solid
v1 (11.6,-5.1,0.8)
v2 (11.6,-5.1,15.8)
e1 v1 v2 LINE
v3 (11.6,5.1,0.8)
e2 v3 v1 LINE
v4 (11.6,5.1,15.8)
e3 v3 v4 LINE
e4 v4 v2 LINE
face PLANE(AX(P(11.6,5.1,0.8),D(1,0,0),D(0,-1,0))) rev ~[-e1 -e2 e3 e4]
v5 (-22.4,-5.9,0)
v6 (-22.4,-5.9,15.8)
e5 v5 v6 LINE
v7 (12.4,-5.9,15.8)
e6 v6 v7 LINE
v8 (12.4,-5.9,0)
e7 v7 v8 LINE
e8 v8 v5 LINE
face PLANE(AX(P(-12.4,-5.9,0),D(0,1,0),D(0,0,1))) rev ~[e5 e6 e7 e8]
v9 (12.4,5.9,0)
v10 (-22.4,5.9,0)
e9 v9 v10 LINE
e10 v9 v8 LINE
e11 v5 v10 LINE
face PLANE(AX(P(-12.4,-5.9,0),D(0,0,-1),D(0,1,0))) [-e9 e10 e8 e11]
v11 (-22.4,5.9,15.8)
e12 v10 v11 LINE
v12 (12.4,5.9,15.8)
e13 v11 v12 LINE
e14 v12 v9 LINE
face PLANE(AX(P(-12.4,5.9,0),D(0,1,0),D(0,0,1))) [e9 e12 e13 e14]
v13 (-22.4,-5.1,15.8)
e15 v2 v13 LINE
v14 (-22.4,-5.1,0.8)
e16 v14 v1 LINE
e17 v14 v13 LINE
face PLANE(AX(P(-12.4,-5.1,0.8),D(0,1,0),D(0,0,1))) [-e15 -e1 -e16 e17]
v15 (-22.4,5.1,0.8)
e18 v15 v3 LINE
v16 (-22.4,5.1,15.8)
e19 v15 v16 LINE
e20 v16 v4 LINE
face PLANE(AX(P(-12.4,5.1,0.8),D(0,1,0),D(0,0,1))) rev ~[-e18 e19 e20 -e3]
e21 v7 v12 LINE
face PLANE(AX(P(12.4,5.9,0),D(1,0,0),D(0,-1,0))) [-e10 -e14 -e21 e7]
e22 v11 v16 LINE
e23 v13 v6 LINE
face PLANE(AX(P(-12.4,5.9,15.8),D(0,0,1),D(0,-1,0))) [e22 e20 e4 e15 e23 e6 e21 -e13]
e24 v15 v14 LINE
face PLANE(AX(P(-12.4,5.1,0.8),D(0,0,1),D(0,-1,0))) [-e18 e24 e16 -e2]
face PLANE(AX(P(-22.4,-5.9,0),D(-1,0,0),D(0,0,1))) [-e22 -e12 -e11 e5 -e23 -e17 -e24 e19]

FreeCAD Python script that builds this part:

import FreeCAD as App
import Part
import Sketcher
from FreeCAD import Vector


def add_polygon(sketch, points):
    """Adds a closed chain of lines whose ends are joined by coincident constraints."""
    first, n = sketch.GeometryCount, len(points)
    for a, b in zip(points, points[1:] + points[:1]):
        sketch.addGeometry(Part.LineSegment(App.Vector(*a, 0), App.Vector(*b, 0)), False)
    for i in range(n):
        sketch.addConstraint(Sketcher.Constraint("Coincident", first + i, 2, first + (i + 1) % n, 1))

doc = App.newDocument("Part")
body = doc.addObject("PartDesign::Body", "Body")

# Sketch on XY plane
sketch1 = body.newObject("Sketcher::SketchObject", "Sketch")
sketch1.AttachmentSupport = (doc.getObject("XY_Plane"), [""])
sketch1.MapMode = "FlatFace"
add_polygon(sketch1, [(12, 6), (-12, 6), (-12, -6), (12, -6)])  # lines 0-3
sketch1.addConstraint([
    Sketcher.Constraint("Horizontal", 0),
    Sketcher.Constraint("Vertical", 1),
    Sketcher.Constraint("Horizontal", 2),
    Sketcher.Constraint("Vertical", 3),
    Sketcher.Constraint("Symmetric", 0, 2, 2, 2, -1, 1),
    Sketcher.Constraint("DistanceX", 0, 2, 0, 1, 24.8),
    Sketcher.Constraint("DistanceY", 1, 2, 1, 1, 11.8),
])
pad1 = body.newObject("PartDesign::Pad", "Pad")
pad1.Profile = sketch1
pad1.Length = 0.8

# Sketch on XY plane
sketch2 = body.newObject("Sketcher::SketchObject", "Sketch001")
sketch2.AttachmentSupport = (doc.getObject("XY_Plane"), [""])
sketch2.MapMode = "FlatFace"
sketch2.AttachmentOffset = App.Placement(Vector(0, 0, 0.8), App.Rotation())
add_polygon(sketch2, [(12.4, -5.9), (12.4, 5.9), (-12.4, 5.9), (-12.4, 5.1), (11.6, 5.1), (11.6, -5.1), (-12.4, -5.1), (-12.4, -5.9)])  # lines 0-7
sketch2.addConstraint([
    Sketcher.Constraint("Vertical", 0),
    Sketcher.Constraint("Horizontal", 1),
    Sketcher.Constraint("Vertical", 2),
    Sketcher.Constraint("Horizontal", 3),
    Sketcher.Constraint("Vertical", 4),
    Sketcher.Constraint("Horizontal", 5),
    Sketcher.Constraint("Vertical", 6),
    Sketcher.Constraint("Horizontal", 7),
    Sketcher.Constraint("Symmetric", 0, 2, 6, 2, -1, 1),
    Sketcher.Constraint("Symmetric", 2, 2, 5, 2, -1),
    Sketcher.Constraint("DistanceY", 2, 2, 2, 1, 0.8),
    Sketcher.Constraint("DistanceX", 3, 2, 0, 2, 0.8),
    Sketcher.Constraint("DistanceX", 3, 1, 3, 2, 24.0),
    Sketcher.Constraint("DistanceY", 0, 1, 0, 2, 11.8),
])
pad2 = body.newObject("PartDesign::Pad", "Pad001")
pad2.Profile = sketch2
pad2.Length = 15

# Sketch on YZ plane
sketch3 = body.newObject("Sketcher::SketchObject", "Sketch002")
sketch3.AttachmentSupport = (doc.getObject("YZ_Plane"), [""])
sketch3.MapMode = "FlatFace"
sketch3.AttachmentOffset = App.Placement(Vector(0, 0, -12.4), App.Rotation())
add_polygon(sketch3, [(5.9, 15.8), (5.9, 0), (-5.9, 0), (-5.9, 15.8), (-5.1, 15.8), (-5.1, 0.8), (5.1, 0.8), (5.1, 15.8)])  # lines 0-7
sketch3.addConstraint([
    Sketcher.Constraint("Vertical", 0),
    Sketcher.Constraint("Horizontal", 1),
    Sketcher.Constraint("Vertical", 2),
    Sketcher.Constraint("Horizontal", 3),
    Sketcher.Constraint("Vertical", 4),
    Sketcher.Constraint("Horizontal", 5),
    Sketcher.Constraint("Vertical", 6),
    Sketcher.Constraint("Horizontal", 7),
    Sketcher.Constraint("Symmetric", 0, 2, 1, 2, -1, 1),
    Sketcher.Constraint("Symmetric", 3, 2, 6, 2, -2),
    Sketcher.Constraint("DistanceX", 3, 1, 3, 2, 0.8),
    Sketcher.Constraint("DistanceY", -1, 1, 4, 2, 0.8),
    Sketcher.Constraint("DistanceY", 4, 2, 4, 1, 15.0),
    Sketcher.Constraint("DistanceX", 1, 2, 1, 1, 11.8),
])
pad3 = body.newObject("PartDesign::Pad", "Pad002")
pad3.Profile = sketch3
pad3.Length = 10
pad3.Reversed = True

doc.recompute()
